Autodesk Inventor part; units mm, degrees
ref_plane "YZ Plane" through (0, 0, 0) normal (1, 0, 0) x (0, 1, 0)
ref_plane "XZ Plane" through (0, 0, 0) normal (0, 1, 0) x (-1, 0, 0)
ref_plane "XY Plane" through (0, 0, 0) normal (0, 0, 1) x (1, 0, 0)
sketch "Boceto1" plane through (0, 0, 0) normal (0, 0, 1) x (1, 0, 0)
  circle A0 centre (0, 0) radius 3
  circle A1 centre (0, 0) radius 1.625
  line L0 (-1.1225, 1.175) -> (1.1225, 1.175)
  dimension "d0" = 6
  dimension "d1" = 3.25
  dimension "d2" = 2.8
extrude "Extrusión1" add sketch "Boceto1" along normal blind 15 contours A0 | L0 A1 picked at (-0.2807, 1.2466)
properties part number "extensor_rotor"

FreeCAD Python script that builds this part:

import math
import FreeCAD as App
import Part
import Sketcher

V = App.Vector
Q = App.Units.Quantity

doc = App.newDocument("Part")
body = doc.addObject("PartDesign::Body", "Body")

# Sketch on XY plane
sketch1 = body.newObject("Sketcher::SketchObject", "Sketch")
sketch1.AttachmentSupport = (doc.getObject("XY_Plane"), [""])
sketch1.MapMode = "FlatFace"
sketch1.addGeometry(Part.Circle(V(0, 0, 0), V(0, 0, 1), 3), False)
sketch1.addGeometry(Part.ArcOfCircle(Part.Circle(V(0, 0, 0), V(0, 0, 1), 1.6), math.radians(134), math.radians(406)), False)
sketch1.addGeometry(Part.LineSegment(V(1.1, 1.2, 0), V(-1.1, 1.2, 0)), False)
sketch1.addConstraint(Sketcher.Constraint("Coincident", 1, 1, 2, 2))
sketch1.addConstraint(Sketcher.Constraint("Coincident", 2, 1, 1, 2))
sketch1.addConstraint(Sketcher.Constraint("Horizontal", 2))
sketch1.addConstraint(Sketcher.Constraint("Coincident", 0, 3, -1, 1))
sketch1.addConstraint(Sketcher.Constraint("Coincident", 1, 3, -1, 1))
sketch1.addConstraint(Sketcher.Constraint("Diameter", 0, Q("6 mm")))
sketch1.addConstraint(Sketcher.Constraint("Radius", 1, Q("1.625 mm")))
sketch1.addConstraint(Sketcher.Constraint("DistanceX", 2, 2, 2, 1, Q("2.245 mm")))
pad1 = body.newObject("PartDesign::Pad", "Pad")
pad1.Profile = sketch1
pad1.Length = 15

doc.recompute()
